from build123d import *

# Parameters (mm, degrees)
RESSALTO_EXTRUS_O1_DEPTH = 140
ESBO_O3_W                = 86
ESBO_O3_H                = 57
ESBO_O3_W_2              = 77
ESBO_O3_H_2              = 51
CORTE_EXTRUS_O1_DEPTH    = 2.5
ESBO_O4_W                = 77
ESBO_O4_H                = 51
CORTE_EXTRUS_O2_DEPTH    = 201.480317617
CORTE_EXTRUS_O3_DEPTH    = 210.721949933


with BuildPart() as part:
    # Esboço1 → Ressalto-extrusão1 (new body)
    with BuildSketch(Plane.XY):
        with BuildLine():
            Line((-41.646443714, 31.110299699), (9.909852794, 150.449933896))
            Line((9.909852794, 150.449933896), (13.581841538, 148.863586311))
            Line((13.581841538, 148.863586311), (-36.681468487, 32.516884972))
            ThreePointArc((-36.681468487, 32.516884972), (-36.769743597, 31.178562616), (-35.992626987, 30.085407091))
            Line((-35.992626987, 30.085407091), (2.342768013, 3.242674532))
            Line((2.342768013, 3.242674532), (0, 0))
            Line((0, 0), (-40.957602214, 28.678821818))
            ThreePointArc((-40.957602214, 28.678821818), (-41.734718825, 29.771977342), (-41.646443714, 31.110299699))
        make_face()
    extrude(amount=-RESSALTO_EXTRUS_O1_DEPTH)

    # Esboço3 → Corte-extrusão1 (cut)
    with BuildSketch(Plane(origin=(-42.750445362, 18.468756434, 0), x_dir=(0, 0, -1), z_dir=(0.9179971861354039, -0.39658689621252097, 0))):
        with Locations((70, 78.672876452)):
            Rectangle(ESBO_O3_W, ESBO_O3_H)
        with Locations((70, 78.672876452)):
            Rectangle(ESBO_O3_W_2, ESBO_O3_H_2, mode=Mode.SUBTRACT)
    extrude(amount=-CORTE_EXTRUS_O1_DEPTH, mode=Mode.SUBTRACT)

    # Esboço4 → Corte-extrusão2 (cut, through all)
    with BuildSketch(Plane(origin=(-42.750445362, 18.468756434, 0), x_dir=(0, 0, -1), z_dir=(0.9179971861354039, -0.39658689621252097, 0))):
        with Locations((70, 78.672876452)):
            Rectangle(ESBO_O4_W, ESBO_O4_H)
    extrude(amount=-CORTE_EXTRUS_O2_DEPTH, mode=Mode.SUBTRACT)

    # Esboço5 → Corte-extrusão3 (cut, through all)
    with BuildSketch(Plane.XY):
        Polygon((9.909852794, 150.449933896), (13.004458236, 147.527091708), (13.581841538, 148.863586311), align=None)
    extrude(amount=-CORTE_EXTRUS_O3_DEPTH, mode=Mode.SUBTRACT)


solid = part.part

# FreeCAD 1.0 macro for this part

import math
import FreeCAD as App
import Part
import Sketcher

doc = App.newDocument("Part")
params = doc.addObject("Spreadsheet::Sheet", "Params")
for row, (alias, value) in enumerate([
    ("sketch1_radius", "2 mm"),
    ("sketch1_radius2", "2 mm"),
    ("sketch1_length", "130 mm"),
    ("sketch1_length2", "50 mm"),
    ("sketch1_length3", "4 mm"),
    ("pad1_length", "140 mm"),
    ("sketch2_width", "86 mm"),
    ("sketch2_width2", "77 mm"),
    ("sketch2_height", "57 mm"),
    ("sketch2_height2", "51 mm"),
    ("pocket1_length", "2.5 mm"),
    ("sketch3_width", "77 mm"),
    ("sketch3_height", "51 mm"),
    ("sketch4_length", "4 mm"),
], start=1):
    params.set(f"A{row}", alias)
    params.set(f"B{row}", "=" + value)
    params.setAlias(f"B{row}", alias)

body = doc.addObject("PartDesign::Body", "Body")

# Sketch on XY plane
sketch1 = body.newObject("Sketcher::SketchObject", "Sketch")
sketch1.AttachmentSupport = (doc.getObject("XY_Plane"), [""])
sketch1.MapMode = "FlatFace"
sketch1.addGeometry([
    Part.LineSegment(App.Vector(9.909853, 150.449934, 0), App.Vector(-41.646444, 31.1103, 0)),  # 0
    Part.ArcOfCircle(Part.Circle(App.Vector(-39.810449, 30.317126, 0), App.Vector(0, 0, 1), 2), math.radians(156.635018), math.radians(235)),  # 1
    Part.LineSegment(App.Vector(-40.957602, 28.678822, 0), App.Vector(0, 0, 0)),  # 2
    Part.LineSegment(App.Vector(0, 0, 0), App.Vector(2.342768, 3.242675, 0)),  # 3
    Part.LineSegment(App.Vector(2.342768, 3.242675, 0), App.Vector(-35.992627, 30.085407, 0)),  # 4
    Part.ArcOfCircle(Part.Circle(App.Vector(-34.845474, 31.723711, 0), App.Vector(0, 0, 1), 2), math.radians(156.635019), math.radians(235)),  # 5
    Part.LineSegment(App.Vector(-36.681468, 32.516885, 0), App.Vector(13.581842, 148.863586, 0)),  # 6
    Part.LineSegment(App.Vector(13.581842, 148.863586, 0), App.Vector(9.909853, 150.449934, 0)),  # 7
], False)
sketch1.addConstraint([
    Sketcher.Constraint("Coincident", 0, 2, 1, 1),
    Sketcher.Constraint("Coincident", 1, 2, 2, 1),
    Sketcher.Constraint("Coincident", 2, 2, 3, 1),
    Sketcher.Constraint("Coincident", 3, 2, 4, 1),
    Sketcher.Constraint("Coincident", 4, 2, 5, 2),
    Sketcher.Constraint("Coincident", 5, 1, 6, 1),
    Sketcher.Constraint("Coincident", 6, 2, 7, 1),
    Sketcher.Constraint("Coincident", 7, 2, 0, 1),
    Sketcher.Constraint("Coincident", 2, 2, -1, 1),
    Sketcher.Constraint("Radius", 1, 2.0),
    Sketcher.Constraint("Radius", 5, 2.0),
    Sketcher.Constraint("Distance", 0, 130.0),
    Sketcher.Constraint("Distance", 2, 50.0),
    Sketcher.Constraint("Distance", 7, 4.0),
    Sketcher.Constraint("DistanceY", -1, 1, 0, 2, 31.1103),
    Sketcher.Constraint("DistanceY", 5, 1, 6, 2, 116.346701),
    Sketcher.Constraint("DistanceX", 1, 3, -1, 1, 39.810449),
    Sketcher.Constraint("DistanceY", -1, 1, 5, 3, 31.723711),
    Sketcher.Constraint("DistanceY", -1, 1, 1, 2, 28.678822),
    Sketcher.Constraint("DistanceX", -1, 1, 3, 2, 2.342768),
    Sketcher.Constraint("DistanceX", 5, 1, -1, 1, 36.681468),
    Sketcher.Constraint("DistanceX", -1, 1, 6, 2, 13.581842),
    Sketcher.Constraint("DistanceX", 0, 2, 5, 3, 6.80097),
    Sketcher.Constraint("DistanceY", 3, 2, 1, 3, 27.074451),
    Sketcher.Constraint("DistanceY", 4, 2, 1, 3, 0.231719),
])
sketch1.setExpression("Constraints[9]", "Params.sketch1_radius")
sketch1.setExpression("Constraints[10]", "Params.sketch1_radius2")
sketch1.setExpression("Constraints[11]", "Params.sketch1_length")
sketch1.setExpression("Constraints[12]", "Params.sketch1_length2")
sketch1.setExpression("Constraints[13]", "Params.sketch1_length3")
pad1 = body.newObject("PartDesign::Pad", "Pad")
pad1.Profile = sketch1
pad1.setExpression("Length", "Params.pad1_length")
pad1.Reversed = True

# Sketch on an angled plane
sketch2 = body.newObject("Sketcher::SketchObject", "Sketch001")
sketch2.Placement = App.Placement(App.Vector(-42.750445, 18.468756, 0), App.Rotation(App.Vector(0, 0, -1), App.Vector(0.396586896, 0.917997186, 0), App.Vector(0.917997186, -0.396586896, 0), "ZXY"))
sketch2.addGeometry([
    Part.LineSegment(App.Vector(27, 107, 0), App.Vector(27, 50, 0)),  # 0
    Part.LineSegment(App.Vector(27, 50, 0), App.Vector(113, 50, 0)),  # 1
    Part.LineSegment(App.Vector(113, 50, 0), App.Vector(113, 107, 0)),  # 2
    Part.LineSegment(App.Vector(113, 107, 0), App.Vector(27, 107, 0)),  # 3
    Part.LineSegment(App.Vector(108, 53, 0), App.Vector(32, 53, 0)),  # 4
    Part.LineSegment(App.Vector(32, 53, 0), App.Vector(32, 104, 0)),  # 5
    Part.LineSegment(App.Vector(32, 104, 0), App.Vector(108, 104, 0)),  # 6
    Part.LineSegment(App.Vector(108, 104, 0), App.Vector(108, 53, 0)),  # 7
], False)
sketch2.addConstraint([
    Sketcher.Constraint("Coincident", 0, 2, 1, 1),
    Sketcher.Constraint("Coincident", 1, 2, 2, 1),
    Sketcher.Constraint("Coincident", 2, 2, 3, 1),
    Sketcher.Constraint("Coincident", 3, 2, 0, 1),
    Sketcher.Constraint("Coincident", 4, 2, 5, 1),
    Sketcher.Constraint("Coincident", 5, 2, 6, 1),
    Sketcher.Constraint("Coincident", 6, 2, 7, 1),
    Sketcher.Constraint("Coincident", 7, 2, 4, 1),
    Sketcher.Constraint("Vertical", 0),
    Sketcher.Constraint("Horizontal", 1),
    Sketcher.Constraint("Vertical", 2),
    Sketcher.Constraint("Horizontal", 3),
    Sketcher.Constraint("Horizontal", 4),
    Sketcher.Constraint("Vertical", 5),
    Sketcher.Constraint("Horizontal", 6),
    Sketcher.Constraint("Vertical", 7),
    Sketcher.Constraint("DistanceX", 1, 1, 1, 2, 86.0),
    Sketcher.Constraint("DistanceX", 4, 2, 4, 1, 77.0),
    Sketcher.Constraint("DistanceY", 0, 2, 0, 1, 57.0),
    Sketcher.Constraint("DistanceY", 5, 1, 5, 2, 51.0),
    Sketcher.Constraint("DistanceX", -1, 1, 0, 2, 27.0),
    Sketcher.Constraint("DistanceY", 0, 2, 4, 2, 3.0),
    Sketcher.Constraint("DistanceX", -1, 1, 4, 2, 31.5),
    Sketcher.Constraint("DistanceY", -1, 1, 0, 2, 50.172876),
])
sketch2.setExpression("Constraints[16]", "Params.sketch2_width")
sketch2.setExpression("Constraints[17]", "Params.sketch2_width2")
sketch2.setExpression("Constraints[18]", "Params.sketch2_height")
sketch2.setExpression("Constraints[19]", "Params.sketch2_height2")
pocket1 = body.newObject("PartDesign::Pocket", "Pocket")
pocket1.Profile = sketch2
pocket1.setExpression("Length", "Params.pocket1_length")

# Sketch on an angled plane
sketch3 = body.newObject("Sketcher::SketchObject", "Sketch002")
sketch3.Placement = App.Placement(App.Vector(-42.750445, 18.468756, 0), App.Rotation(App.Vector(0, 0, -1), App.Vector(0.396586896, 0.917997186, 0), App.Vector(0.917997186, -0.396586896, 0), "ZXY"))
sketch3.addGeometry([
    Part.LineSegment(App.Vector(32, 104, 0), App.Vector(32, 53, 0)),
    Part.LineSegment(App.Vector(32, 53, 0), App.Vector(108, 53, 0)),
    Part.LineSegment(App.Vector(108, 53, 0), App.Vector(108, 104, 0)),
    Part.LineSegment(App.Vector(108, 104, 0), App.Vector(32, 104, 0)),
], False)
sketch3.addConstraint([
    Sketcher.Constraint("Coincident", 0, 2, 1, 1),
    Sketcher.Constraint("Coincident", 1, 2, 2, 1),
    Sketcher.Constraint("Coincident", 2, 2, 3, 1),
    Sketcher.Constraint("Coincident", 3, 2, 0, 1),
    Sketcher.Constraint("Vertical", 0),
    Sketcher.Constraint("Horizontal", 1),
    Sketcher.Constraint("Vertical", 2),
    Sketcher.Constraint("Horizontal", 3),
    Sketcher.Constraint("DistanceX", 1, 1, 1, 2, 77.0),
    Sketcher.Constraint("DistanceY", 0, 2, 0, 1, 51.0),
    Sketcher.Constraint("DistanceX", -1, 1, 0, 2, 31.5),
    Sketcher.Constraint("DistanceY", -1, 1, 0, 2, 53.172876),
])
sketch3.setExpression("Constraints[8]", "Params.sketch3_width")
sketch3.setExpression("Constraints[9]", "Params.sketch3_height")
pocket2 = body.newObject("PartDesign::Pocket", "Pocket001")
pocket2.Profile = sketch3
pocket2.Type = "ThroughAll"

# Sketch on XY plane
sketch4 = body.newObject("Sketcher::SketchObject", "Sketch003")
sketch4.AttachmentSupport = (doc.getObject("XY_Plane"), [""])
sketch4.MapMode = "FlatFace"
sketch4.addGeometry([
    Part.LineSegment(App.Vector(9.9, 150.4, 0), App.Vector(13, 147.5, 0)),
    Part.LineSegment(App.Vector(13, 147.5, 0), App.Vector(13.6, 148.9, 0)),
    Part.LineSegment(App.Vector(13.6, 148.9, 0), App.Vector(9.9, 150.4, 0)),
], False)
sketch4.addConstraint([
    Sketcher.Constraint("Coincident", 0, 2, 1, 1),
    Sketcher.Constraint("Coincident", 1, 2, 2, 1),
    Sketcher.Constraint("Coincident", 2, 2, 0, 1),
    Sketcher.Constraint("Perpendicular", 1, 2),
    Sketcher.Constraint("Distance", 2, 4.0),
    Sketcher.Constraint("Distance", 0, 4.256711),
    Sketcher.Constraint("DistanceX", -1, 1, 0, 2, 13.004458),
    Sketcher.Constraint("DistanceY", -1, 1, 0, 2, 147.527092),
    Sketcher.Constraint("DistanceX", -1, 1, 1, 2, 13.581842),
])
sketch4.setExpression("Constraints[4]", "Params.sketch4_length")
pocket3 = body.newObject("PartDesign::Pocket", "Pocket002")
pocket3.Profile = sketch4
pocket3.Type = "ThroughAll"

doc.recompute()
